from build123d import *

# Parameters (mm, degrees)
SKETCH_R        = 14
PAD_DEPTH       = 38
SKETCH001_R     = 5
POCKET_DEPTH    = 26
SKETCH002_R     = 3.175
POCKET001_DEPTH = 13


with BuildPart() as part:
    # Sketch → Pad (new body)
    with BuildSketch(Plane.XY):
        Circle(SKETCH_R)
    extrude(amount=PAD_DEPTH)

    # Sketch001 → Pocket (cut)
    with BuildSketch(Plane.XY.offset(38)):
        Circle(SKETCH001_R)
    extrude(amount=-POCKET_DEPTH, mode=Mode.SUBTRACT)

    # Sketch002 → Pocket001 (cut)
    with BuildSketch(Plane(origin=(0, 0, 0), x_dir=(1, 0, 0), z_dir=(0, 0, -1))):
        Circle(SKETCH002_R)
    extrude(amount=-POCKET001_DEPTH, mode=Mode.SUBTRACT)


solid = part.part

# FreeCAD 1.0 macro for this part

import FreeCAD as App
import Part
import Sketcher

doc = App.newDocument("Part")
body = doc.addObject("PartDesign::Body", "Body")

sketch1 = body.newObject("Sketcher::SketchObject", "Sketch")
sketch1.AttachmentSupport = (doc.getObject("XY_Plane"), [""])
sketch1.MapMode = "FlatFace"
sketch1.addGeometry(Part.Circle(App.Vector(0, 0, 0), App.Vector(0, 0, 1), 14), False)
sketch1.addConstraint([
    Sketcher.Constraint("Coincident", 0, 3, -1, 1),
    Sketcher.Constraint("Diameter", 0, 28.0),
])
pad1 = body.newObject("PartDesign::Pad", "Pad")
pad1.Profile = sketch1
pad1.Length = 38

sketch2 = body.newObject("Sketcher::SketchObject", "Sketch001")
sketch2.AttachmentSupport = (doc.getObject("XY_Plane"), [""])
sketch2.MapMode = "FlatFace"
sketch2.AttachmentOffset = App.Placement(App.Vector(0, 0, 38), App.Rotation())
sketch2.addGeometry(Part.Circle(App.Vector(0, 0, 0), App.Vector(0, 0, 1), 5), False)
sketch2.addConstraint([
    Sketcher.Constraint("Coincident", 0, 3, -1, 1),
    Sketcher.Constraint("Diameter", 0, 10.0),
])
pocket1 = body.newObject("PartDesign::Pocket", "Pocket")
pocket1.Profile = sketch2
pocket1.Length = 26

sketch3 = body.newObject("Sketcher::SketchObject", "Sketch002")
sketch3.AttachmentSupport = (doc.getObject("XY_Plane"), [""])
sketch3.MapMode = "FlatFace"
sketch3.addGeometry(Part.Circle(App.Vector(0, 0, 0), App.Vector(0, 0, 1), 3.2), False)
sketch3.addConstraint([
    Sketcher.Constraint("Coincident", 0, 3, -1, 1),
    Sketcher.Constraint("Diameter", 0, 6.35),
])
pocket2 = body.newObject("PartDesign::Pocket", "Pocket001")
pocket2.Profile = sketch3
pocket2.Length = 13
pocket2.Reversed = True

doc.recompute()
